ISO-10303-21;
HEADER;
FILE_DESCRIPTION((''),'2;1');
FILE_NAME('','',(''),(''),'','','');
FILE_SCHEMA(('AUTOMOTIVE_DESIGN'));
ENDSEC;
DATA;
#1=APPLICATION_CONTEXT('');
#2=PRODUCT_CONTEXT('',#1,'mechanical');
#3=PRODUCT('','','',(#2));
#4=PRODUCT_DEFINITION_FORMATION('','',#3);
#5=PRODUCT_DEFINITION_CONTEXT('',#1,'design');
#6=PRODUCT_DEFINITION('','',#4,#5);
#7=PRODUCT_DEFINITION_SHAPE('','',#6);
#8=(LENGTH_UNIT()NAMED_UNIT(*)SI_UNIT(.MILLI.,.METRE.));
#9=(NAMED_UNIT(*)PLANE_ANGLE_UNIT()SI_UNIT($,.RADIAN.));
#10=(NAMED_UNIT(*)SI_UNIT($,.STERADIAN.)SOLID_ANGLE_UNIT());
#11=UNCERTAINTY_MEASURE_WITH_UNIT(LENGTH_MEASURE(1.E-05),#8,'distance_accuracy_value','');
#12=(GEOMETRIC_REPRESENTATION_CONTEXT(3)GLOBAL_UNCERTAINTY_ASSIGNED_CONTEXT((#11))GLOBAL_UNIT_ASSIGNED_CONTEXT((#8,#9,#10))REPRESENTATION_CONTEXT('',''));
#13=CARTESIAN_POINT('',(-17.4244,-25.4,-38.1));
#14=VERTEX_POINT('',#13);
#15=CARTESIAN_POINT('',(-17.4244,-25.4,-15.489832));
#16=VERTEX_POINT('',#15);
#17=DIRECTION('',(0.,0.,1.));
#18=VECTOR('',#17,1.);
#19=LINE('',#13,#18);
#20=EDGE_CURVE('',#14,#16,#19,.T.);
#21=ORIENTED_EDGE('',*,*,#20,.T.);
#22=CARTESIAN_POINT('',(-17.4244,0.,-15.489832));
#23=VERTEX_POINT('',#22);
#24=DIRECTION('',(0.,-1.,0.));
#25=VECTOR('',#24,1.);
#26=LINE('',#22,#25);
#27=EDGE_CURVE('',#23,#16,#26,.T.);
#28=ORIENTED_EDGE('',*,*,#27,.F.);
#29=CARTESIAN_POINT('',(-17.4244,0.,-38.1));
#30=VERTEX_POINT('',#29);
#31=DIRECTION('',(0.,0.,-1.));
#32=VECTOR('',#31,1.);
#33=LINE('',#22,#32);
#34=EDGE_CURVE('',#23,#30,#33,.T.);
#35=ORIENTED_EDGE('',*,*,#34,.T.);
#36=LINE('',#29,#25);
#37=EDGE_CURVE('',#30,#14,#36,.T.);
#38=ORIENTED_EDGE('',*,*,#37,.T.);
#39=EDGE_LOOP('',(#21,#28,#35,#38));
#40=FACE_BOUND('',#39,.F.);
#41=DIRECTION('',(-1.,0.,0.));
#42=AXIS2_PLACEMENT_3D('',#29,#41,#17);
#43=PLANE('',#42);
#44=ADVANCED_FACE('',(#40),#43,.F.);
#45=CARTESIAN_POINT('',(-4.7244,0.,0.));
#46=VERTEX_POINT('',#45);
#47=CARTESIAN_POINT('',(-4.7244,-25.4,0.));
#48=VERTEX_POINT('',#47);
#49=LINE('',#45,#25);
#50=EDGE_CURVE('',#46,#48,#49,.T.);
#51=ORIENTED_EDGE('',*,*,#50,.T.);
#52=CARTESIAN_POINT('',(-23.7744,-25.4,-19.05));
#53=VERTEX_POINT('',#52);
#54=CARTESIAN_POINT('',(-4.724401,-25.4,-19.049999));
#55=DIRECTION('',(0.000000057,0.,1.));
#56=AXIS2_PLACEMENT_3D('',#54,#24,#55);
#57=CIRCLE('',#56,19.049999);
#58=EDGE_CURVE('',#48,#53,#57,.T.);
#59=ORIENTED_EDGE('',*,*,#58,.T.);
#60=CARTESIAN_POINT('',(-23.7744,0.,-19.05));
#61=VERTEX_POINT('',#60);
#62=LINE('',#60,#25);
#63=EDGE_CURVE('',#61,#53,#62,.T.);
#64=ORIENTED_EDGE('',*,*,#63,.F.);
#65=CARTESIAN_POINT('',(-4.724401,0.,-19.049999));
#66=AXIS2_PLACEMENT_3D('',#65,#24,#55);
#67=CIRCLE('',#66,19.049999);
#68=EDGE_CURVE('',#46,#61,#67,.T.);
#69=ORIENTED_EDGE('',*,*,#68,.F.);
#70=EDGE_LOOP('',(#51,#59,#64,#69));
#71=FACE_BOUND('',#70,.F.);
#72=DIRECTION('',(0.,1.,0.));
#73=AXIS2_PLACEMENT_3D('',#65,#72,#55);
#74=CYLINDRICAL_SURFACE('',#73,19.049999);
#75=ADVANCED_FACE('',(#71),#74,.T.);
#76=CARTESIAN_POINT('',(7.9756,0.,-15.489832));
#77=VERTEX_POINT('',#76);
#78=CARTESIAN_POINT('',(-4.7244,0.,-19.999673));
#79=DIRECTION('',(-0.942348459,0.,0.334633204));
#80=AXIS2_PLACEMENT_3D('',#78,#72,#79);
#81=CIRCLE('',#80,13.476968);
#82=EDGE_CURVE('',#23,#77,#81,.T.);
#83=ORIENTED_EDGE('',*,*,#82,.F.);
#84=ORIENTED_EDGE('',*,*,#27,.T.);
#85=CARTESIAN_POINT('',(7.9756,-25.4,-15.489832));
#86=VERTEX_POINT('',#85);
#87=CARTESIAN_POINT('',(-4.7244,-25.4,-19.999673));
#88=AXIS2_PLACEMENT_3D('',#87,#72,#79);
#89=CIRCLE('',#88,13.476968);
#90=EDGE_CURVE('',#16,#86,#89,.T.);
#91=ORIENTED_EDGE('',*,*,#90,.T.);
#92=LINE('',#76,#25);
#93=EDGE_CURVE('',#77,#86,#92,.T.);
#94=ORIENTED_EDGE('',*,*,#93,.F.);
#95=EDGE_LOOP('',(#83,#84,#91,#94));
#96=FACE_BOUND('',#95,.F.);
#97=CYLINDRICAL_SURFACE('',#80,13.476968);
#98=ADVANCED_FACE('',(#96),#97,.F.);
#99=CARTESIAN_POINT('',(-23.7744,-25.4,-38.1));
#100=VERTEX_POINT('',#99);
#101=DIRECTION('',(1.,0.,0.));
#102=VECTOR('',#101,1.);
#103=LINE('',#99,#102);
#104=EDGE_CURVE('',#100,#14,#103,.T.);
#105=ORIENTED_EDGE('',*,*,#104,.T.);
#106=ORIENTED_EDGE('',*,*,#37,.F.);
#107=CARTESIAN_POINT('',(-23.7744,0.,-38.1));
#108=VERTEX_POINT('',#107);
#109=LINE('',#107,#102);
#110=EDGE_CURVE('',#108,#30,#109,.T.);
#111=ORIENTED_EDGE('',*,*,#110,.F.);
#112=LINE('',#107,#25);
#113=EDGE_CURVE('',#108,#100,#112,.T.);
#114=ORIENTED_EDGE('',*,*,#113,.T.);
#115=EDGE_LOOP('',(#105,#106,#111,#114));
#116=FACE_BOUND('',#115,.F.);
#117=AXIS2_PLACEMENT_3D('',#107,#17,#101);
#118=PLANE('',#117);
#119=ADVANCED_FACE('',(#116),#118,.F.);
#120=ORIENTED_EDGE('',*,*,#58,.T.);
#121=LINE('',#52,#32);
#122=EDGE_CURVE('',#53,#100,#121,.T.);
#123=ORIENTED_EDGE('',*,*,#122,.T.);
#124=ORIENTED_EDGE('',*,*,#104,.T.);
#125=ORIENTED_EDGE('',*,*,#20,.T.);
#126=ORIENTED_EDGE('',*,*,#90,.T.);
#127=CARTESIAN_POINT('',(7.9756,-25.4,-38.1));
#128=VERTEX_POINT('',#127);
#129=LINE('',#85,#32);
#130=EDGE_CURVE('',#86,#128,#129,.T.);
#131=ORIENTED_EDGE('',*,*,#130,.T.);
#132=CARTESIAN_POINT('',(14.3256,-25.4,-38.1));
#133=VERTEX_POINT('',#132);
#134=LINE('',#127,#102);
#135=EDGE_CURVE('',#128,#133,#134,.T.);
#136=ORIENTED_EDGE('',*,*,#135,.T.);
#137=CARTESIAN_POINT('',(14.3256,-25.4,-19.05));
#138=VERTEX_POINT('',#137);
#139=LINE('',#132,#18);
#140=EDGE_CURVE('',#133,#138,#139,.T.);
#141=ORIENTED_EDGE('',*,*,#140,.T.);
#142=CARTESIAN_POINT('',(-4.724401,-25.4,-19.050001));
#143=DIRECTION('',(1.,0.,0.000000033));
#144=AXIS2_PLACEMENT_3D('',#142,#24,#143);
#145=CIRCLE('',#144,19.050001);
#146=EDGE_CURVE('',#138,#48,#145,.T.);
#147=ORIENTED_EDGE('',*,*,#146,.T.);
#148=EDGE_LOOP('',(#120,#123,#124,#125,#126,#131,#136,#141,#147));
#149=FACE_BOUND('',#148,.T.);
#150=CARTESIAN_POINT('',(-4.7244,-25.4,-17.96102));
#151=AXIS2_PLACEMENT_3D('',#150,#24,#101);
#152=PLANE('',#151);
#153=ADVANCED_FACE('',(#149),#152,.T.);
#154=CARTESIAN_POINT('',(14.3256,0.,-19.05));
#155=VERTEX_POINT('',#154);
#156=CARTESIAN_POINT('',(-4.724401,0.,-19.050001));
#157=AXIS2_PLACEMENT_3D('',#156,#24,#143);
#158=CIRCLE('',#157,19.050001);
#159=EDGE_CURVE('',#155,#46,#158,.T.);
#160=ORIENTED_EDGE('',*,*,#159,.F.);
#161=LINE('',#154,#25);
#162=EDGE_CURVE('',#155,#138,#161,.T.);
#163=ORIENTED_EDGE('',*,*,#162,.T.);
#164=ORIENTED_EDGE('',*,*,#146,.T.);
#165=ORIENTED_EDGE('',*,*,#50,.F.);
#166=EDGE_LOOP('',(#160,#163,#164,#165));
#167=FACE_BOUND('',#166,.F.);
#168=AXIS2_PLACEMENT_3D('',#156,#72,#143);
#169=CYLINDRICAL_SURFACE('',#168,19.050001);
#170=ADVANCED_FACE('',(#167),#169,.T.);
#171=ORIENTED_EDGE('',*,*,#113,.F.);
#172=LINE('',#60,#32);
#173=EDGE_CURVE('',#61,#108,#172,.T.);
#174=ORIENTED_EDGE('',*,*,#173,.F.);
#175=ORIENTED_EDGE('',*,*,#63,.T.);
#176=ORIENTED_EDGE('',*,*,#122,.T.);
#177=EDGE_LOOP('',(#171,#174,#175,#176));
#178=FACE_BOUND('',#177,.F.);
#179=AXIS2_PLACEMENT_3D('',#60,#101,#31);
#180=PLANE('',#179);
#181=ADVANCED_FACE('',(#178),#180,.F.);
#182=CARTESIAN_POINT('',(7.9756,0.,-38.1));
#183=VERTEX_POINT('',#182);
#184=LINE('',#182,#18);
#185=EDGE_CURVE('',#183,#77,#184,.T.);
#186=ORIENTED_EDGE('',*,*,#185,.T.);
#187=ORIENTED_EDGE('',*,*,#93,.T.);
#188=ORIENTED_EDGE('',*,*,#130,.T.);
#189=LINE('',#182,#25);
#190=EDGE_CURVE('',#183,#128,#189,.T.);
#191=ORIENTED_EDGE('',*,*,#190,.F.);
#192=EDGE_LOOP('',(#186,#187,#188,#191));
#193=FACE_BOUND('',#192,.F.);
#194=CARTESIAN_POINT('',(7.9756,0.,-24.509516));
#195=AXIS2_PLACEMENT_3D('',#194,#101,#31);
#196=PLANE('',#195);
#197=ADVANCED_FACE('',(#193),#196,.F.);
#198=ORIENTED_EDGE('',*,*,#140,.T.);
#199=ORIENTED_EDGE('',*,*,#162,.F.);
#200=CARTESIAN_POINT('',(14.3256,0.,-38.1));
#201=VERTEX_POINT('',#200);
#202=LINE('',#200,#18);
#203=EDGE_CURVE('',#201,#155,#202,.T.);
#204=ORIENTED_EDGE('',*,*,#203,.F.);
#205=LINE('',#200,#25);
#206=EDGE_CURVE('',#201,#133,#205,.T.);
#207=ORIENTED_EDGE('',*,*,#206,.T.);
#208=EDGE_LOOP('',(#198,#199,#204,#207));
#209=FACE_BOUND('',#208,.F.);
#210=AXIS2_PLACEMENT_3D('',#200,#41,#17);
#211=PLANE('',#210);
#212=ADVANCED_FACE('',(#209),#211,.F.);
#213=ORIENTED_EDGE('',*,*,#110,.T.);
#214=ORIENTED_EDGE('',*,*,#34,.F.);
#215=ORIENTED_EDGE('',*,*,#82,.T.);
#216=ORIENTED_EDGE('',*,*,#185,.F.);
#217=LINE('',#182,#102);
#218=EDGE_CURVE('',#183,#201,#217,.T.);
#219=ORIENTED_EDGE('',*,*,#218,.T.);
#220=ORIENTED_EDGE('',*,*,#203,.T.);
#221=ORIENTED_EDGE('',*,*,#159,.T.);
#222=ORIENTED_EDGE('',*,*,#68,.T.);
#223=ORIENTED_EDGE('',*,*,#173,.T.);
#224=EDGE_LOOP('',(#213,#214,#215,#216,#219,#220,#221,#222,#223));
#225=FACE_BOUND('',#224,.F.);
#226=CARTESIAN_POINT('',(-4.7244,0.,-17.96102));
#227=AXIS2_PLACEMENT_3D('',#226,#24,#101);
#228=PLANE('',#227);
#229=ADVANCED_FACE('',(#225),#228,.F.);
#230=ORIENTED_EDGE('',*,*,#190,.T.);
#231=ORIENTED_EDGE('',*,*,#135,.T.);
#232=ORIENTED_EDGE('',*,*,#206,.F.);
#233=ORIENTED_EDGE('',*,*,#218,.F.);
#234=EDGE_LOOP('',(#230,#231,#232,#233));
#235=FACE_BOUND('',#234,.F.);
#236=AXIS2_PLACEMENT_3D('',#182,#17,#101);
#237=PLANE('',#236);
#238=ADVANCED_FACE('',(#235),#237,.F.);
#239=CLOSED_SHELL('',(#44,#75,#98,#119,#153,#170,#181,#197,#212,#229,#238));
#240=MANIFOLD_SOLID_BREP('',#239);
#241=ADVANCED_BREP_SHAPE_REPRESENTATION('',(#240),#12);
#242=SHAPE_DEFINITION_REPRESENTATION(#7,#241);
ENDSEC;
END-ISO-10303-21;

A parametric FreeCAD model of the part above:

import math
import FreeCAD as App
import Part
import Sketcher
Q = App.Units.Quantity

doc = App.newDocument("Part")
body = doc.addObject("PartDesign::Body", "Body")

# Sketch on XZ plane
sketch1 = body.newObject("Sketcher::SketchObject", "Sketch")
sketch1.AttachmentSupport = (doc.getObject("XZ_Plane"), [""])
sketch1.MapMode = "FlatFace"
sketch1.addGeometry([
    Part.ArcOfCircle(Part.Circle(App.Vector(-5, -19, 0), App.Vector(0, 0, 1), 19), math.radians(90), math.radians(180)),  # 0
    Part.LineSegment(App.Vector(-24, -19, 0), App.Vector(-24, -38, 0)),  # 1
    Part.LineSegment(App.Vector(-24, -38, 0), App.Vector(-17, -38, 0)),  # 2
    Part.LineSegment(App.Vector(-17, -38, 0), App.Vector(-17, -25, 0)),  # 3
    Part.ArcOfCircle(Part.Circle(App.Vector(-5, -20, 0), App.Vector(0, 0, 1), 13), math.radians(160), math.radians(200)),  # 4
    Part.LineSegment(App.Vector(-17, -15, 0), App.Vector(-17, -6, 0)),  # 5
    Part.LineSegment(App.Vector(-17, -6, 0), App.Vector(8, -6, 0)),  # 6
    Part.LineSegment(App.Vector(8, -6, 0), App.Vector(8, -15, 0)),  # 7
    Part.ArcOfCircle(Part.Circle(App.Vector(-5, -20, 0), App.Vector(0, 0, 1), 13), math.radians(-20), math.radians(20)),  # 8
    Part.LineSegment(App.Vector(8, -25, 0), App.Vector(8, -38, 0)),  # 9
    Part.LineSegment(App.Vector(8, -38, 0), App.Vector(14, -38, 0)),  # 10
    Part.LineSegment(App.Vector(14, -38, 0), App.Vector(14, -19, 0)),  # 11
    Part.ArcOfCircle(Part.Circle(App.Vector(-5, -19, 0), App.Vector(0, 0, 1), 19), math.radians(0), math.radians(90)),  # 12
], False)
sketch1.addConstraint([
    Sketcher.Constraint("Tangent", 0, 2, 1, 1),
    Sketcher.Constraint("Coincident", 1, 2, 2, 1),
    Sketcher.Constraint("Coincident", 2, 2, 3, 1),
    Sketcher.Constraint("Coincident", 3, 2, 4, 2),
    Sketcher.Constraint("Coincident", 4, 1, 5, 1),
    Sketcher.Constraint("Coincident", 5, 2, 6, 1),
    Sketcher.Constraint("Coincident", 6, 2, 7, 1),
    Sketcher.Constraint("Coincident", 7, 2, 8, 2),
    Sketcher.Constraint("Coincident", 8, 1, 9, 1),
    Sketcher.Constraint("Coincident", 9, 2, 10, 1),
    Sketcher.Constraint("Coincident", 10, 2, 11, 1),
    Sketcher.Constraint("Tangent", 11, 2, 12, 1),
    Sketcher.Constraint("Tangent", 12, 2, 0, 1),
    Sketcher.Constraint("Vertical", 1),
    Sketcher.Constraint("Horizontal", 2),
    Sketcher.Constraint("Vertical", 3),
    Sketcher.Constraint("Vertical", 5),
    Sketcher.Constraint("Horizontal", 6),
    Sketcher.Constraint("Vertical", 7),
    Sketcher.Constraint("Vertical", 9),
    Sketcher.Constraint("Horizontal", 10),
    Sketcher.Constraint("Vertical", 11),
    Sketcher.Constraint("Coincident", 8, 3, 4, 3),
    Sketcher.Constraint("Equal", 0, 12),
    Sketcher.Constraint("PointOnObject", 12, 2, -1),
    Sketcher.Constraint("Horizontal", 4, 1, 7, 2),
    Sketcher.Constraint("Horizontal", 3, 2, 8, 1),
    Sketcher.Constraint("Horizontal", 2, 2, 9, 2),
    Sketcher.Constraint("Vertical", 3, 2, 4, 1),
    Sketcher.Constraint("Vertical", 0, 3, 12, 2),
    Sketcher.Constraint("Equal", 2, 10),
    Sketcher.Constraint("DistanceX", 6, 1, 6, 2, Q("1 in")),
    Sketcher.Constraint("Radius", 0, Q("0.75 in")),
    Sketcher.Constraint("DistanceY", 1, 2, 1, 1, Q("0.75 in")),
    Sketcher.Constraint("DistanceY", 0, 2, 5, 2, Q("0.5 in")),
    Sketcher.Constraint("DistanceX", 0, 3, -1, 1, Q("0.186 in")),
    Sketcher.Constraint("Radius", 4, Q("13.476957 mm")),
    Sketcher.Constraint("Radius", 8, Q("13.476973 mm")),
    Sketcher.Constraint("DistanceY", 3, 1, 3, 2, Q("13.590484 mm")),
])
pad1 = body.newObject("PartDesign::Pad", "Pad")
pad1.Profile = sketch1
pad1.Length = Q("1 in")

# Sketch on XZ plane
sketch2 = body.newObject("Sketcher::SketchObject", "Sketch001")
sketch2.AttachmentSupport = (doc.getObject("XZ_Plane"), [""])
sketch2.MapMode = "FlatFace"
sketch2.addGeometry([
    Part.ArcOfCircle(Part.Circle(App.Vector(-5, -19, 0), App.Vector(0, 0, 1), 19), math.radians(90), math.radians(180)),  # 0
    Part.LineSegment(App.Vector(-24, -19, 0), App.Vector(-24, -38, 0)),  # 1
    Part.LineSegment(App.Vector(-24, -38, 0), App.Vector(-17, -38, 0)),  # 2
    Part.LineSegment(App.Vector(-17, -38, 0), App.Vector(-17, -15, 0)),  # 3
    Part.ArcOfCircle(Part.Circle(App.Vector(-5, -20, 0), App.Vector(0, 0, 1), 13), math.radians(20), math.radians(160)),  # 4
    Part.LineSegment(App.Vector(8, -15, 0), App.Vector(8, -38, 0)),  # 5
    Part.LineSegment(App.Vector(8, -38, 0), App.Vector(14, -38, 0)),  # 6
    Part.LineSegment(App.Vector(14, -38, 0), App.Vector(14, -19, 0)),  # 7
    Part.ArcOfCircle(Part.Circle(App.Vector(-5, -19, 0), App.Vector(0, 0, 1), 19), math.radians(0), math.radians(90)),  # 8
], False)
sketch2.addConstraint([
    Sketcher.Constraint("Tangent", 0, 2, 1, 1),
    Sketcher.Constraint("Coincident", 1, 2, 2, 1),
    Sketcher.Constraint("Coincident", 2, 2, 3, 1),
    Sketcher.Constraint("Coincident", 3, 2, 4, 2),
    Sketcher.Constraint("Coincident", 4, 1, 5, 1),
    Sketcher.Constraint("Coincident", 5, 2, 6, 1),
    Sketcher.Constraint("Coincident", 6, 2, 7, 1),
    Sketcher.Constraint("Tangent", 7, 2, 8, 1),
    Sketcher.Constraint("Tangent", 8, 2, 0, 1),
    Sketcher.Constraint("Vertical", 1),
    Sketcher.Constraint("Horizontal", 2),
    Sketcher.Constraint("Vertical", 3),
    Sketcher.Constraint("Vertical", 5),
    Sketcher.Constraint("Horizontal", 6),
    Sketcher.Constraint("Vertical", 7),
    Sketcher.Constraint("Equal", 0, 8),
    Sketcher.Constraint("PointOnObject", 8, 2, -1),
    Sketcher.Constraint("Horizontal", 3, 2, 4, 1),
    Sketcher.Constraint("Horizontal", 2, 2, 5, 2),
    Sketcher.Constraint("Vertical", 0, 3, 4, 3),
    Sketcher.Constraint("Vertical", 4, 3, 8, 2),
    Sketcher.Constraint("Radius", 0, Q("0.75 in")),
    Sketcher.Constraint("DistanceX", 3, 2, 4, 1, Q("1 in")),
    Sketcher.Constraint("DistanceY", 1, 2, 1, 1, Q("0.75 in")),
    Sketcher.Constraint("DistanceX", 0, 3, -1, 1, Q("0.186 in")),
    Sketcher.Constraint("Radius", 4, Q("13.476968 mm")),
    Sketcher.Constraint("DistanceY", 3, 1, 3, 2, Q("22.610168 mm")),
])
pad2 = body.newObject("PartDesign::Pad", "Pad001")
pad2.Profile = sketch2
pad2.Length = Q("1 in")

# Sketch on XZ plane
sketch3 = body.newObject("Sketcher::SketchObject", "Sketch002")
sketch3.AttachmentSupport = (doc.getObject("XZ_Plane"), [""])
sketch3.MapMode = "FlatFace"
sketch3.addGeometry([
    Part.ArcOfCircle(Part.Circle(App.Vector(-5, -19, 0), App.Vector(0, 0, 1), 19), math.radians(90), math.radians(180)),  # 0
    Part.LineSegment(App.Vector(-24, -19, 0), App.Vector(-24, -38, 0)),  # 1
    Part.LineSegment(App.Vector(-24, -38, 0), App.Vector(-17, -38, 0)),  # 2
    Part.LineSegment(App.Vector(-17, -38, 0), App.Vector(-17, -15, 0)),  # 3
    Part.ArcOfCircle(Part.Circle(App.Vector(-5, -20, 0), App.Vector(0, 0, 1), 13), math.radians(20), math.radians(160)),  # 4
    Part.LineSegment(App.Vector(8, -15, 0), App.Vector(8, -38, 0)),  # 5
    Part.LineSegment(App.Vector(8, -38, 0), App.Vector(14, -38, 0)),  # 6
    Part.LineSegment(App.Vector(14, -38, 0), App.Vector(14, -19, 0)),  # 7
    Part.ArcOfCircle(Part.Circle(App.Vector(-5, -19, 0), App.Vector(0, 0, 1), 19), math.radians(0), math.radians(90)),  # 8
], False)
sketch3.addConstraint([
    Sketcher.Constraint("Tangent", 0, 2, 1, 1),
    Sketcher.Constraint("Coincident", 1, 2, 2, 1),
    Sketcher.Constraint("Coincident", 2, 2, 3, 1),
    Sketcher.Constraint("Coincident", 3, 2, 4, 2),
    Sketcher.Constraint("Coincident", 4, 1, 5, 1),
    Sketcher.Constraint("Coincident", 5, 2, 6, 1),
    Sketcher.Constraint("Coincident", 6, 2, 7, 1),
    Sketcher.Constraint("Tangent", 7, 2, 8, 1),
    Sketcher.Constraint("Tangent", 8, 2, 0, 1),
    Sketcher.Constraint("Vertical", 1),
    Sketcher.Constraint("Horizontal", 2),
    Sketcher.Constraint("Vertical", 3),
    Sketcher.Constraint("Vertical", 5),
    Sketcher.Constraint("Horizontal", 6),
    Sketcher.Constraint("Vertical", 7),
    Sketcher.Constraint("Equal", 0, 8),
    Sketcher.Constraint("PointOnObject", 8, 2, -1),
    Sketcher.Constraint("Horizontal", 3, 2, 4, 1),
    Sketcher.Constraint("Horizontal", 2, 2, 5, 2),
    Sketcher.Constraint("Vertical", 0, 3, 4, 3),
    Sketcher.Constraint("Vertical", 4, 3, 8, 2),
    Sketcher.Constraint("Radius", 0, Q("0.75 in")),
    Sketcher.Constraint("DistanceX", 3, 2, 4, 1, Q("1 in")),
    Sketcher.Constraint("DistanceY", 1, 2, 1, 1, Q("0.75 in")),
    Sketcher.Constraint("DistanceX", 0, 3, -1, 1, Q("0.186 in")),
    Sketcher.Constraint("Radius", 4, Q("13.476968 mm")),
    Sketcher.Constraint("DistanceY", 3, 1, 3, 2, Q("22.610168 mm")),
])
pad3 = body.newObject("PartDesign::Pad", "Pad002")
pad3.Profile = sketch3
pad3.Length = Q("1 in")

doc.recompute()
